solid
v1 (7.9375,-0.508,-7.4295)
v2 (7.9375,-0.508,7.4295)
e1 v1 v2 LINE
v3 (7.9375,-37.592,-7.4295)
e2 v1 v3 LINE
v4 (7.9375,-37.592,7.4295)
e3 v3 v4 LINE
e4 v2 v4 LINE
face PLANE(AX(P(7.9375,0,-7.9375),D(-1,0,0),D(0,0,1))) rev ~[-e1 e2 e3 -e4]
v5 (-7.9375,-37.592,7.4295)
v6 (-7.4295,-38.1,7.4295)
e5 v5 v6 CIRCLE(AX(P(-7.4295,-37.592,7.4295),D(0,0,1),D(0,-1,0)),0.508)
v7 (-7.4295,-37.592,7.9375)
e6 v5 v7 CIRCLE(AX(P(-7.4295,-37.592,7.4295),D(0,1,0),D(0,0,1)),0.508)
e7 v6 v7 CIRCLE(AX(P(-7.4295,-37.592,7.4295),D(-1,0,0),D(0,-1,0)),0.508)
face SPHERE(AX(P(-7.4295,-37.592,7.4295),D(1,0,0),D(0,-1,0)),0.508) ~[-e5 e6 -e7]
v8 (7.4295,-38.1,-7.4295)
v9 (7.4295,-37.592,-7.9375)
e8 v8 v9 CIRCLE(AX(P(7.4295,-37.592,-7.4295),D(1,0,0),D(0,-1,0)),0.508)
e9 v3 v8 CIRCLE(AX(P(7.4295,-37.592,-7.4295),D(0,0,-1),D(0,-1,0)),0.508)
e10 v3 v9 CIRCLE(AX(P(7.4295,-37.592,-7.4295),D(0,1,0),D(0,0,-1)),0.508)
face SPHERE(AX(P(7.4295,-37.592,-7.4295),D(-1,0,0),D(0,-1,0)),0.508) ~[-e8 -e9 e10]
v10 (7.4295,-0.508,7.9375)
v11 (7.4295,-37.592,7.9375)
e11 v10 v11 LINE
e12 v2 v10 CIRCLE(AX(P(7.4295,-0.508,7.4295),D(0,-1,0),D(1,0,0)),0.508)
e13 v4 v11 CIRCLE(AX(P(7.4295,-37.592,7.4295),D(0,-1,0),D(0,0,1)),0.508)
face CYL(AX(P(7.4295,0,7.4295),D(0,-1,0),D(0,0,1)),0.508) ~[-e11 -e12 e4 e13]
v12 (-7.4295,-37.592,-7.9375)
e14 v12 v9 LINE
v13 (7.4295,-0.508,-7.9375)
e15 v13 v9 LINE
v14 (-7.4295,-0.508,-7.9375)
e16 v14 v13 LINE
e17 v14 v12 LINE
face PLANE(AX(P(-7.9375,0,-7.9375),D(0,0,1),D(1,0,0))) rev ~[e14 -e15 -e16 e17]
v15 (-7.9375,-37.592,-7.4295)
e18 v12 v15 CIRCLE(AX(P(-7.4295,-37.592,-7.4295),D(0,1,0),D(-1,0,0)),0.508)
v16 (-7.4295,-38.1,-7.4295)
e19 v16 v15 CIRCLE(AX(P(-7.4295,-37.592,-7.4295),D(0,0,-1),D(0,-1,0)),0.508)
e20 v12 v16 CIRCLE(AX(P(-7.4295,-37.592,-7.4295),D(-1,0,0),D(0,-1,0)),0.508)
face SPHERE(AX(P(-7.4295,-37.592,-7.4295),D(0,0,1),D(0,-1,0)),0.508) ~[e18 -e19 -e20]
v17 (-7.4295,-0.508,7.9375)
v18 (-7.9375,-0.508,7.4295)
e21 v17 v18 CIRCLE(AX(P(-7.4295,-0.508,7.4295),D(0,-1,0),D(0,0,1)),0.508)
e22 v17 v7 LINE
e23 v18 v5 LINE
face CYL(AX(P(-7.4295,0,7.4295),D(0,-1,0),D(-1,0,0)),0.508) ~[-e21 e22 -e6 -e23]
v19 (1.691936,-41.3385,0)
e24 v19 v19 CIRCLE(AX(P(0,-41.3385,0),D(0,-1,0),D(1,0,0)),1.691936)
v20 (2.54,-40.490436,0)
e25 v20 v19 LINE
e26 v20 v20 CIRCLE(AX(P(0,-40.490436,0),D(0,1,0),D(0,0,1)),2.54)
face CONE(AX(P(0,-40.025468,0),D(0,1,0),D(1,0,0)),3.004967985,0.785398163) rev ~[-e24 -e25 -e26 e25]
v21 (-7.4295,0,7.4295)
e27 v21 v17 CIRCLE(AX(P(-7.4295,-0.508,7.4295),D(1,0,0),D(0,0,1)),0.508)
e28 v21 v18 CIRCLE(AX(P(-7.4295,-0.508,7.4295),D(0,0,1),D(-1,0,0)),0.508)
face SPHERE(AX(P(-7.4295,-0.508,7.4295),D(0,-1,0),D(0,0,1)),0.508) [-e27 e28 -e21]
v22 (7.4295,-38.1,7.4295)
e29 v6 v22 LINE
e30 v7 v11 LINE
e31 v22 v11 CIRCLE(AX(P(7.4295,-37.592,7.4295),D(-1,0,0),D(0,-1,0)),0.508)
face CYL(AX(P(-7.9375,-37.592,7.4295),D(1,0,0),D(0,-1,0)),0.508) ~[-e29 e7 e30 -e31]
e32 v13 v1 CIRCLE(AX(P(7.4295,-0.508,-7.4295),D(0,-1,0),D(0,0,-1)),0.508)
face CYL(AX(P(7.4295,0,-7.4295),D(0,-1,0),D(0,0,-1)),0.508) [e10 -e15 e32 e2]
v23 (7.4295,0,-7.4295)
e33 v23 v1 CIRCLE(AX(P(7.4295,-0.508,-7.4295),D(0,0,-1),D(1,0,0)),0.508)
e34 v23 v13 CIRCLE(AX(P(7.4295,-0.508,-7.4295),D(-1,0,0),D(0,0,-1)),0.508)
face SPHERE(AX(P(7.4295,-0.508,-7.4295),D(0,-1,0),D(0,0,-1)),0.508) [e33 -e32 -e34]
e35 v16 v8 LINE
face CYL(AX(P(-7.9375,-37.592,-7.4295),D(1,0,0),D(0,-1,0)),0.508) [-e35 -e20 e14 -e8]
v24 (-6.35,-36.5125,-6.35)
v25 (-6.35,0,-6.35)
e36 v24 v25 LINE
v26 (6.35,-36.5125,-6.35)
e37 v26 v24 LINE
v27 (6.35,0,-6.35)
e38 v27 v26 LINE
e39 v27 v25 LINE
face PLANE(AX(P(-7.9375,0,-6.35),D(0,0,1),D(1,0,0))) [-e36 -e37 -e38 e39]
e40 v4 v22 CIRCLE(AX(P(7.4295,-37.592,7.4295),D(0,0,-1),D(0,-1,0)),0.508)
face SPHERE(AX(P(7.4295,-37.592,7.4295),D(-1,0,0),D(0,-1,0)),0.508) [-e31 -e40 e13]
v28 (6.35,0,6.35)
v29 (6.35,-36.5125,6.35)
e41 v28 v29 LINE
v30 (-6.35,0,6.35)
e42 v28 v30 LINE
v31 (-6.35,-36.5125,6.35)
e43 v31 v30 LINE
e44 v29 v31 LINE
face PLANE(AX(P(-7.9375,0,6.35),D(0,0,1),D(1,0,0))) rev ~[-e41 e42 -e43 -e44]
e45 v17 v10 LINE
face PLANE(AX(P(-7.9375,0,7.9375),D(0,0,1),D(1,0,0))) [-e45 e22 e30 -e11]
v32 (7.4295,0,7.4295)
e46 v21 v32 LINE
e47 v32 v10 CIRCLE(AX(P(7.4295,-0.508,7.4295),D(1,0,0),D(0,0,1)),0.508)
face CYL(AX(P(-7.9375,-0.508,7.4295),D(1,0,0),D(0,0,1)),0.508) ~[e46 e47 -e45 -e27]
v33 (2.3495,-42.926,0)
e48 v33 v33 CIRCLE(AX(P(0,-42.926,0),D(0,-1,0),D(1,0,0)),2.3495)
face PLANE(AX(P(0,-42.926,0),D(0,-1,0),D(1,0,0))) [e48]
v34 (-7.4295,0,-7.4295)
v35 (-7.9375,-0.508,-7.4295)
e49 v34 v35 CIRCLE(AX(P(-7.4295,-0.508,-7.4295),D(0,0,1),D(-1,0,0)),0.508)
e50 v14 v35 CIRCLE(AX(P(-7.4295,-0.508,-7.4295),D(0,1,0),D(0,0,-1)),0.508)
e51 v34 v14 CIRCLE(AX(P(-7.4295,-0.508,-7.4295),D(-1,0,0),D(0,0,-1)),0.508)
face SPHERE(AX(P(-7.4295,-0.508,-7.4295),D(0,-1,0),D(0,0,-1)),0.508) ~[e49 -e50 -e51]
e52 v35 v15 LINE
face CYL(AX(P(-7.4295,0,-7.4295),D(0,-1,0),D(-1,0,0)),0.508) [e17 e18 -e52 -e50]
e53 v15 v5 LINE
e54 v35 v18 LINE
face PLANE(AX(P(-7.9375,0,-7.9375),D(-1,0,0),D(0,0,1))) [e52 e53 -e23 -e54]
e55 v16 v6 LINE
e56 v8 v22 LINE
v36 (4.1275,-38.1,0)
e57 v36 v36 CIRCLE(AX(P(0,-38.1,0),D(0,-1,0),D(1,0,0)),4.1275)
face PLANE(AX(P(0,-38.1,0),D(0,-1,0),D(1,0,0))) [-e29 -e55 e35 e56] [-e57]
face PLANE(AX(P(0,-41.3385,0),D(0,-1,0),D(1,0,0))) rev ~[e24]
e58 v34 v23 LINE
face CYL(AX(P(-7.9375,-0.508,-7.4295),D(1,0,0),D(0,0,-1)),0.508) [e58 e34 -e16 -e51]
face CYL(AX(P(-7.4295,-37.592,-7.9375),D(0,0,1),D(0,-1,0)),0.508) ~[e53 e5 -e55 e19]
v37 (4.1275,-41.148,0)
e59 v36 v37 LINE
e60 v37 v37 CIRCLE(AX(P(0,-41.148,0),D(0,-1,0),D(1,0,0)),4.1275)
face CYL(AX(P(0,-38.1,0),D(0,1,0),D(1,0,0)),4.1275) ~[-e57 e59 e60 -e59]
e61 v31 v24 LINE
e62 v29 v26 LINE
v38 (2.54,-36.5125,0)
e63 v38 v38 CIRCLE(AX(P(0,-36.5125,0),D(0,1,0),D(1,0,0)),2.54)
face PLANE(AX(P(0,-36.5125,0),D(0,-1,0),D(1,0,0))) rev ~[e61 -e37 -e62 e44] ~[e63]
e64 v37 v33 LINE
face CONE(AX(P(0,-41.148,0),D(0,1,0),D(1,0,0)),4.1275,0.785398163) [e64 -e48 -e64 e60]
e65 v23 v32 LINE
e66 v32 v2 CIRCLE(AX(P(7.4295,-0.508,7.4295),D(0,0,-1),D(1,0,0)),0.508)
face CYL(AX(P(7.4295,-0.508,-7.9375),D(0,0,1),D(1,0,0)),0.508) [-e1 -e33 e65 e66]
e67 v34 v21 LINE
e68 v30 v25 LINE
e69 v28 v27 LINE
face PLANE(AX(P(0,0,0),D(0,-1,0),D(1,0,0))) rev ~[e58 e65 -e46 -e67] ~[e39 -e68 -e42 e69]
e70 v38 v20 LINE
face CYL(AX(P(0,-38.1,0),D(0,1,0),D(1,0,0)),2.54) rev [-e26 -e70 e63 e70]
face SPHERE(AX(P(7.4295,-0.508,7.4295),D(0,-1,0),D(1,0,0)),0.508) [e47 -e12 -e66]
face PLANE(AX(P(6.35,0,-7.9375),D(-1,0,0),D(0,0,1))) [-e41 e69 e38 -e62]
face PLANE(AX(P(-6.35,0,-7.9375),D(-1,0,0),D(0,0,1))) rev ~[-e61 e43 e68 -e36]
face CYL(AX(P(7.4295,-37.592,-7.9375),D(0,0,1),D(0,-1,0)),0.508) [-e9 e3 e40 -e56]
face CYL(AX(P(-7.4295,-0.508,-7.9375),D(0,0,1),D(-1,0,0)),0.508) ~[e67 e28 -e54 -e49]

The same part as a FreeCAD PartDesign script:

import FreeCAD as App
import Part
import Sketcher

V = App.Vector
Q = App.Units.Quantity


def edges_at(feature, points):
    """Names of the edges that pass closest to the given points."""
    edges = feature.Shape.Edges
    near = lambda p: min(range(len(edges)), key=lambda i: edges[i].distToShape(Part.Vertex(*p))[0])
    return sorted({f"Edge{near(p) + 1}" for p in points})


def faces_at(feature, points):
    """Names of the faces that lie closest to the given points."""
    faces = feature.Shape.Faces
    near = lambda p: min(range(len(faces)), key=lambda i: faces[i].distToShape(Part.Vertex(*p))[0])
    return sorted({f"Face{near(p) + 1}" for p in points})

doc = App.newDocument("Part")
body = doc.addObject("PartDesign::Body", "Body")

sketch1 = body.newObject("Sketcher::SketchObject", "Sketch")
sketch1.AttachmentSupport = (doc.getObject("XZ_Plane"), [""])
sketch1.MapMode = "FlatFace"
sketch1.addGeometry(Part.LineSegment(V(-8, 8, 0), V(-8, -8, 0)), False)
sketch1.addGeometry(Part.LineSegment(V(-8, -8, 0), V(8, -8, 0)), False)
sketch1.addGeometry(Part.LineSegment(V(8, -8, 0), V(8, 8, 0)), False)
sketch1.addGeometry(Part.LineSegment(V(8, 8, 0), V(-8, 8, 0)), False)
sketch1.addConstraint(Sketcher.Constraint("Coincident", 0, 2, 1, 1))
sketch1.addConstraint(Sketcher.Constraint("Coincident", 1, 2, 2, 1))
sketch1.addConstraint(Sketcher.Constraint("Coincident", 2, 2, 3, 1))
sketch1.addConstraint(Sketcher.Constraint("Coincident", 3, 2, 0, 1))
sketch1.addConstraint(Sketcher.Constraint("Vertical", 0))
sketch1.addConstraint(Sketcher.Constraint("Horizontal", 1))
sketch1.addConstraint(Sketcher.Constraint("Vertical", 2))
sketch1.addConstraint(Sketcher.Constraint("Horizontal", 3))
sketch1.addConstraint(Sketcher.Constraint("Symmetric", 0, 2, 2, 2, -1, 1))
sketch1.addConstraint(Sketcher.Constraint("Equal", 3, 0))
sketch1.addConstraint(Sketcher.Constraint("DistanceX", 1, 1, 1, 2, Q("0.625 in")))
pad1 = body.newObject("PartDesign::Pad", "Pad")
pad1.Profile = sketch1
pad1.Length = Q("1.5 in")

sketch2 = body.newObject("Sketcher::SketchObject", "Sketch001")
sketch2.AttachmentSupport = (doc.getObject("XZ_Plane"), [""])
sketch2.MapMode = "FlatFace"
sketch2.AttachmentOffset = App.Placement(V(0, 0, 1.5 * 25.4), App.Rotation())
sketch2.addGeometry(Part.Circle(V(0, 0, 0), V(0, 0, 1), 4.1), False)
sketch2.addConstraint(Sketcher.Constraint("Coincident", 0, 3, -1, 1))
sketch2.addConstraint(Sketcher.Constraint("Diameter", 0, Q("0.325 in")))
pad2 = body.newObject("PartDesign::Pad", "Pad001")
pad2.Profile = sketch2
pad2.Length = Q("0.19 in")
doc.recompute()

chamfer = body.newObject("PartDesign::Chamfer", "Chamfer")
chamfer.Base = (pad2, edges_at(pad2, [(-4.128, -42.926, 0)]))
chamfer.Size = Q("0.07 in")
doc.recompute()

thickness = body.newObject("PartDesign::Thickness", "Thickness")
thickness.Base = (chamfer, faces_at(chamfer, [(0, 0, 0)]))
thickness.Value = Q("0.0625 in")
thickness.Reversed = True
thickness.Join = "Intersection"
doc.recompute()

fillet = body.newObject("PartDesign::Fillet", "Fillet")
fillet.Base = (thickness, edges_at(thickness, [
    (0, -38.1, 7.938),
    (-7.938, -38.1, 0),
    (0, -38.1, -7.938),
    (7.938, -38.1, 0),
    (-7.938, -19.05, 7.938),
    (-7.938, -19.05, -7.938),
    (7.938, -19.05, 7.938),
    (7.938, -19.05, -7.938),
    (0, 0, -7.938),
    (7.938, 0, 0),
    (0, 0, 7.938),
    (-7.938, 0, 0),
]))
fillet.Radius = Q("0.02 in")

doc.recompute()
